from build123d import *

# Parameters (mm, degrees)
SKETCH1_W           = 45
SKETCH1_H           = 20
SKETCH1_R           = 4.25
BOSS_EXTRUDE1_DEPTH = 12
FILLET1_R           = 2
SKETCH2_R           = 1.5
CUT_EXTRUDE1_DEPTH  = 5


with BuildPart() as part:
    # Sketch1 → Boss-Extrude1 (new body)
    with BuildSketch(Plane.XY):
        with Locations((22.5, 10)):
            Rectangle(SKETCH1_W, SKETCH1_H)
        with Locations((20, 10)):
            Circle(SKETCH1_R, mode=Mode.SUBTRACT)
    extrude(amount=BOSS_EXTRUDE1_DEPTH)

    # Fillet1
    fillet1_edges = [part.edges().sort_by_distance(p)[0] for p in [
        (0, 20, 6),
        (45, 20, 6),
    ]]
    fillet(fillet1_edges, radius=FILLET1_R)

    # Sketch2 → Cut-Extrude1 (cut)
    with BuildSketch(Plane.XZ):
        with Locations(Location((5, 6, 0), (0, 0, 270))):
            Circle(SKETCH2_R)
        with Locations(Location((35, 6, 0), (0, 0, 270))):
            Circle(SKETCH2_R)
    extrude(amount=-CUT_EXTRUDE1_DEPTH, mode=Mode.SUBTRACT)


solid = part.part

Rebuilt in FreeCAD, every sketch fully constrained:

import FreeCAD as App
import Part
import Sketcher

V = App.Vector


def edges_at(feature, points):
    """Names of the edges that pass closest to the given points."""
    edges = feature.Shape.Edges
    near = lambda p: min(range(len(edges)), key=lambda i: edges[i].distToShape(Part.Vertex(*p))[0])
    return sorted({f"Edge{near(p) + 1}" for p in points})

doc = App.newDocument("Part")
body = doc.addObject("PartDesign::Body", "Body")

sketch1 = body.newObject("Sketcher::SketchObject", "Sketch")
sketch1.AttachmentSupport = (doc.getObject("XY_Plane"), [""])
sketch1.MapMode = "FlatFace"
sketch1.addGeometry([
    Part.LineSegment(V(0, 20, 0), V(0, 0, 0)),
    Part.LineSegment(V(0, 0, 0), V(45, 0, 0)),
    Part.LineSegment(V(45, 0, 0), V(45, 20, 0)),
    Part.LineSegment(V(45, 20, 0), V(0, 20, 0)),
    Part.Circle(V(20, 10, 0), V(0, 0, 1), 4.2),
], False)
sketch1.addConstraint([
    Sketcher.Constraint("Coincident", 0, 2, 1, 1),
    Sketcher.Constraint("Coincident", 1, 2, 2, 1),
    Sketcher.Constraint("Coincident", 2, 2, 3, 1),
    Sketcher.Constraint("Coincident", 3, 2, 0, 1),
    Sketcher.Constraint("Vertical", 0),
    Sketcher.Constraint("Horizontal", 1),
    Sketcher.Constraint("Vertical", 2),
    Sketcher.Constraint("Horizontal", 3),
    Sketcher.Constraint("Coincident", 0, 2, -1, 1),
    Sketcher.Constraint("Diameter", 4, 8.5),
    Sketcher.Constraint("DistanceX", 1, 1, 1, 2, 45.0),
    Sketcher.Constraint("DistanceY", 0, 2, 0, 1, 20.0),
    Sketcher.Constraint("DistanceX", -1, 1, 4, 3, 20.0),
    Sketcher.Constraint("DistanceY", -1, 1, 4, 3, 10.0),
])
pad1 = body.newObject("PartDesign::Pad", "Pad")
pad1.Profile = sketch1
pad1.Length = 12
doc.recompute()

fillet = body.newObject("PartDesign::Fillet", "Fillet")
fillet.Base = (pad1, edges_at(pad1, [(0, 20, 6), (45, 20, 6)]))
fillet.Radius = 2

sketch2 = body.newObject("Sketcher::SketchObject", "Sketch001")
sketch2.AttachmentSupport = (doc.getObject("XZ_Plane"), [""])
sketch2.MapMode = "FlatFace"
sketch2.addGeometry([
    Part.Circle(V(5, 6, 0), V(0, 0, 1), 1.5),
    Part.Circle(V(35, 6, 0), V(0, 0, 1), 1.5),
], False)
sketch2.addConstraint([
    Sketcher.Constraint("Equal", 0, 1),
    Sketcher.Constraint("Horizontal", 0, 3, 1, 3),
    Sketcher.Constraint("Diameter", 0, 3.0),
    Sketcher.Constraint("DistanceX", -1, 1, 0, 3, 5.0),
    Sketcher.Constraint("DistanceY", -1, 1, 0, 3, 6.0),
    Sketcher.Constraint("DistanceX", -1, 1, 1, 3, 35.0),
])
pocket1 = body.newObject("PartDesign::Pocket", "Pocket")
pocket1.Profile = sketch2
pocket1.Length = 5

doc.recompute()
